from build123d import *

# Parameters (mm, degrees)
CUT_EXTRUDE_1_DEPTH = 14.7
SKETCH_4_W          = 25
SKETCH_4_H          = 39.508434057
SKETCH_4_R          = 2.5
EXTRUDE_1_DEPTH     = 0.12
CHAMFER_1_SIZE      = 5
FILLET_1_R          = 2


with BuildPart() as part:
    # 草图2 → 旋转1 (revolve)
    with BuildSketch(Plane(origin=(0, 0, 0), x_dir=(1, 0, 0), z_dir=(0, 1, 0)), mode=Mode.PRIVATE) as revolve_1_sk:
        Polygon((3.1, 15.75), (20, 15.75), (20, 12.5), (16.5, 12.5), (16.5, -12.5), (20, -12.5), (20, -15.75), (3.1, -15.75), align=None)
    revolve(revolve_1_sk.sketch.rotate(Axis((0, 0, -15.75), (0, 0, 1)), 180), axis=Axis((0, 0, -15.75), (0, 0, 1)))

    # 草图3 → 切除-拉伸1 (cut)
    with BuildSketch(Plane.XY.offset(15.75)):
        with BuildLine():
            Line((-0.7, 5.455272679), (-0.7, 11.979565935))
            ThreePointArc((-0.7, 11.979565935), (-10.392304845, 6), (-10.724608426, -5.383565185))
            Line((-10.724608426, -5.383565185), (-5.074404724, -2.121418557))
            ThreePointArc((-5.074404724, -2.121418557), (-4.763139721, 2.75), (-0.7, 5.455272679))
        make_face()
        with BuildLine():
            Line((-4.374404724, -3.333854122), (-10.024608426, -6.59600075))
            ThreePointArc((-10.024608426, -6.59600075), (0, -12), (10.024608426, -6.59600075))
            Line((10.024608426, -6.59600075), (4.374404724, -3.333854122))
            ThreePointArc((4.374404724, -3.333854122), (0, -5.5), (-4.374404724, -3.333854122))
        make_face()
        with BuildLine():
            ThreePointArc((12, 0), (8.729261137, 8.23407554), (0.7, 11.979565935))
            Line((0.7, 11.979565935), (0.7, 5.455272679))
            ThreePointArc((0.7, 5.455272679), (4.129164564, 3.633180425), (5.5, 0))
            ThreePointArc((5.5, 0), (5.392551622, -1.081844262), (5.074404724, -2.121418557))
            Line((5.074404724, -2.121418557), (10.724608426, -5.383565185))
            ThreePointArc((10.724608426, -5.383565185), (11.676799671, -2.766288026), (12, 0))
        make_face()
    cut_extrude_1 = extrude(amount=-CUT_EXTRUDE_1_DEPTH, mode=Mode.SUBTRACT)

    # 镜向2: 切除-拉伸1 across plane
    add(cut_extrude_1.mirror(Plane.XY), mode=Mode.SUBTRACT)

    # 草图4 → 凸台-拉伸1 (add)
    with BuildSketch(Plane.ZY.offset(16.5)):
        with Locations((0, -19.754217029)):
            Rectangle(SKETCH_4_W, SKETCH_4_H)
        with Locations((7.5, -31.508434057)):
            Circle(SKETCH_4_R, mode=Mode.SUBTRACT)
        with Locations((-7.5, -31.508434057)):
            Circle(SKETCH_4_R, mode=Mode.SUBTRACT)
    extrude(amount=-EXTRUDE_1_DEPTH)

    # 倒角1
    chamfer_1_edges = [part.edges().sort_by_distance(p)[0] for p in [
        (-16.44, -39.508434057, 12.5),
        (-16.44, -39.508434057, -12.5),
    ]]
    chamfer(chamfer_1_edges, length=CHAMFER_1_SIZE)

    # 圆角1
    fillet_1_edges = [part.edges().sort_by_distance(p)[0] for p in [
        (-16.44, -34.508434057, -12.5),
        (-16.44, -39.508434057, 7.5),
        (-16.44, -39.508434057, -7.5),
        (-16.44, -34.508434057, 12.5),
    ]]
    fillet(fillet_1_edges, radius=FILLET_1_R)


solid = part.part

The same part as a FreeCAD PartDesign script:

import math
import FreeCAD as App
import Part
import Sketcher
Q = App.Units.Quantity


def edges_at(feature, points):
    """Names of the edges that pass closest to the given points."""
    edges = feature.Shape.Edges
    near = lambda p: min(range(len(edges)), key=lambda i: edges[i].distToShape(Part.Vertex(*p))[0])
    return sorted({f"Edge{near(p) + 1}" for p in points})

doc = App.newDocument("Part")
body = doc.addObject("PartDesign::Body", "Body")

sketch1 = body.newObject("Sketcher::SketchObject", "Sketch")
sketch1.AttachmentSupport = (doc.getObject("XZ_Plane"), [""])
sketch1.MapMode = "FlatFace"
sketch1.addGeometry([
    Part.LineSegment(App.Vector(20, -15.8, 0), App.Vector(3.1, -15.8, 0)),
    Part.LineSegment(App.Vector(3.1, -15.8, 0), App.Vector(3.1, 15.8, 0)),
    Part.LineSegment(App.Vector(3.1, 15.8, 0), App.Vector(20, 15.8, 0)),
    Part.LineSegment(App.Vector(20, 15.8, 0), App.Vector(20, 12.5, 0)),
    Part.LineSegment(App.Vector(20, 12.5, 0), App.Vector(16.5, 12.5, 0)),
    Part.LineSegment(App.Vector(16.5, 12.5, 0), App.Vector(16.5, -12.5, 0)),
    Part.LineSegment(App.Vector(16.5, -12.5, 0), App.Vector(20, -12.5, 0)),
    Part.LineSegment(App.Vector(20, -12.5, 0), App.Vector(20, -15.8, 0)),
], False)
sketch1.addConstraint([
    Sketcher.Constraint("Coincident", 0, 2, 1, 1),
    Sketcher.Constraint("Coincident", 1, 2, 2, 1),
    Sketcher.Constraint("Coincident", 2, 2, 3, 1),
    Sketcher.Constraint("Coincident", 3, 2, 4, 1),
    Sketcher.Constraint("Coincident", 4, 2, 5, 1),
    Sketcher.Constraint("Coincident", 5, 2, 6, 1),
    Sketcher.Constraint("Coincident", 6, 2, 7, 1),
    Sketcher.Constraint("Coincident", 7, 2, 0, 1),
    Sketcher.Constraint("Horizontal", 0),
    Sketcher.Constraint("Vertical", 1),
    Sketcher.Constraint("Horizontal", 2),
    Sketcher.Constraint("Vertical", 3),
    Sketcher.Constraint("Horizontal", 4),
    Sketcher.Constraint("Vertical", 5),
    Sketcher.Constraint("Horizontal", 6),
    Sketcher.Constraint("Vertical", 7),
    Sketcher.Constraint("Symmetric", 3, 2, 6, 2, -1),
    Sketcher.Constraint("Equal", 3, 7),
    Sketcher.Constraint("DistanceY", 5, 2, 5, 1, 25.0),
    Sketcher.Constraint("DistanceX", 0, 2, 0, 1, 16.9),
    Sketcher.Constraint("DistanceX", 4, 2, 4, 1, 3.5),
    Sketcher.Constraint("DistanceY", 1, 1, 1, 2, 31.5),
    Sketcher.Constraint("DistanceX", -1, 1, 2, 2, 20.0),
])
revolution = body.newObject("PartDesign::Revolution", "Revolution")
revolution.Profile = sketch1
revolution.ReferenceAxis = (sketch1, ["V_Axis"])
revolution.Angle = 360

sketch2 = body.newObject("Sketcher::SketchObject", "Sketch001")
sketch2.AttachmentSupport = (doc.getObject("XY_Plane"), [""])
sketch2.MapMode = "FlatFace"
sketch2.AttachmentOffset = App.Placement(App.Vector(0, 0, 15.75), App.Rotation())
sketch2.addGeometry([
    Part.LineSegment(App.Vector(-0.7, 5.5, 0), App.Vector(-0.7, 12, 0)),
    Part.ArcOfCircle(Part.Circle(App.Vector(0, 0, 0), App.Vector(0, 0, 1), 12), math.radians(93), math.radians(207)),
    Part.LineSegment(App.Vector(-10.7, -5.4, 0), App.Vector(-5.1, -2.1, 0)),
    Part.ArcOfCircle(Part.Circle(App.Vector(0, 0, 0), App.Vector(0, 0, 1), 5.5), math.radians(97), math.radians(203)),
    Part.LineSegment(App.Vector(-4.4, -3.3, 0), App.Vector(-10, -6.6, 0)),
    Part.ArcOfCircle(Part.Circle(App.Vector(0, 0, 0), App.Vector(0, 0, 1), 12), math.radians(-147), math.radians(-33)),
    Part.LineSegment(App.Vector(10, -6.6, 0), App.Vector(4.4, -3.3, 0)),
    Part.ArcOfCircle(Part.Circle(App.Vector(0, 0, 0), App.Vector(0, 0, 1), 5.5), math.radians(-143), math.radians(-37)),
    Part.ArcOfCircle(Part.Circle(App.Vector(0, 0, 0), App.Vector(0, 0, 1), 12), math.radians(0), math.radians(87)),
    Part.LineSegment(App.Vector(0.7, 12, 0), App.Vector(0.7, 5.5, 0)),
    Part.ArcOfCircle(Part.Circle(App.Vector(0, 0, 0), App.Vector(0, 0, 1), 5.5), math.radians(0), math.radians(83)),
    Part.ArcOfCircle(Part.Circle(App.Vector(0, 0, 0), App.Vector(0, 0, 1), 5.5), math.radians(-23), math.radians(0)),
    Part.LineSegment(App.Vector(5.1, -2.1, 0), App.Vector(10.7, -5.4, 0)),
    Part.ArcOfCircle(Part.Circle(App.Vector(0, 0, 0), App.Vector(0, 0, 1), 12), math.radians(-27), math.radians(0)),
], False)
sketch2.addConstraint([
    Sketcher.Constraint("Coincident", 0, 2, 1, 1),
    Sketcher.Constraint("Coincident", 1, 2, 2, 1),
    Sketcher.Constraint("Coincident", 2, 2, 3, 2),
    Sketcher.Constraint("Coincident", 3, 1, 0, 1),
    Sketcher.Constraint("Coincident", 4, 2, 5, 1),
    Sketcher.Constraint("Coincident", 5, 2, 6, 1),
    Sketcher.Constraint("Coincident", 6, 2, 7, 2),
    Sketcher.Constraint("Coincident", 7, 1, 4, 1),
    Sketcher.Constraint("Coincident", 8, 2, 9, 1),
    Sketcher.Constraint("Coincident", 9, 2, 10, 2),
    Sketcher.Constraint("Tangent", 10, 1, 11, 2),
    Sketcher.Constraint("Coincident", 11, 1, 12, 1),
    Sketcher.Constraint("Coincident", 12, 2, 13, 1),
    Sketcher.Constraint("Tangent", 13, 2, 8, 1),
    Sketcher.Constraint("Vertical", 0),
    Sketcher.Constraint("Vertical", 9),
    Sketcher.Constraint("Coincident", 1, 3, -1, 1),
    Sketcher.Constraint("Coincident", 3, 3, -1, 1),
    Sketcher.Constraint("Coincident", 5, 3, -1, 1),
    Sketcher.Constraint("Coincident", 7, 3, -1, 1),
    Sketcher.Constraint("Coincident", 8, 3, -1, 1),
    Sketcher.Constraint("Coincident", 10, 3, -1, 1),
    Sketcher.Constraint("Equal", 1, 5),
    Sketcher.Constraint("Equal", 3, 7),
    Sketcher.Constraint("Equal", 5, 8),
    Sketcher.Constraint("Equal", 7, 10),
    Sketcher.Constraint("Equal", 10, 11),
    Sketcher.Constraint("Equal", 8, 13),
    Sketcher.Constraint("PointOnObject", 10, 1, -1),
    Sketcher.Constraint("PointOnObject", 13, 2, -1),
    Sketcher.Constraint("Parallel", 2, 4),
    Sketcher.Constraint("Parallel", 6, 12),
    Sketcher.Constraint("Horizontal", 4, 2, 5, 2),
    Sketcher.Constraint("Horizontal", 6, 2, 7, 1),
    Sketcher.Constraint("Horizontal", 0, 2, 8, 2),
    Sketcher.Constraint("Horizontal", 2, 2, 11, 1),
    Sketcher.Constraint("Equal", 2, 4),
    Sketcher.Constraint("Radius", 1, 12.0),
    Sketcher.Constraint("Radius", 3, 5.5),
    Sketcher.Constraint("Angle", 2, Q("30 deg")),
    Sketcher.Constraint("DistanceX", 0, 2, -1, 1, 0.7),
    Sketcher.Constraint("DistanceX", 1, 2, 4, 2, 0.7),
])
pocket1 = body.newObject("PartDesign::Pocket", "Pocket")
pocket1.Profile = sketch2
pocket1.Length = 14.7
doc.recompute()

mirrored = body.newObject("PartDesign::Mirrored", "Mirrored")
mirrored.Originals = [pocket1]
mirrored.MirrorPlane = (doc.getObject("XY_Plane"), [""])
body.Tip = mirrored

sketch3 = body.newObject("Sketcher::SketchObject", "Sketch002")
sketch3.AttachmentSupport = (doc.getObject("YZ_Plane"), [""])
sketch3.MapMode = "FlatFace"
sketch3.AttachmentOffset = App.Placement(App.Vector(0, 0, -16.5), App.Rotation())
sketch3.addGeometry([
    Part.LineSegment(App.Vector(0, -12.5, 0), App.Vector(-39.5, -12.5, 0)),
    Part.LineSegment(App.Vector(-39.5, -12.5, 0), App.Vector(-39.5, 12.5, 0)),
    Part.LineSegment(App.Vector(-39.5, 12.5, 0), App.Vector(0, 12.5, 0)),
    Part.LineSegment(App.Vector(0, 12.5, 0), App.Vector(0, -12.5, 0)),
    Part.Circle(App.Vector(-31.5, -7.5, 0), App.Vector(0, 0, 1), 2.5),
    Part.Circle(App.Vector(-31.5, 7.5, 0), App.Vector(0, 0, 1), 2.5),
], False)
sketch3.addConstraint([
    Sketcher.Constraint("Coincident", 0, 2, 1, 1),
    Sketcher.Constraint("Coincident", 1, 2, 2, 1),
    Sketcher.Constraint("Coincident", 2, 2, 3, 1),
    Sketcher.Constraint("Coincident", 3, 2, 0, 1),
    Sketcher.Constraint("Horizontal", 0),
    Sketcher.Constraint("Vertical", 1),
    Sketcher.Constraint("Horizontal", 2),
    Sketcher.Constraint("Vertical", 3),
    Sketcher.Constraint("Equal", 4, 5),
    Sketcher.Constraint("Symmetric", 2, 2, 3, 2, -1, 1),
    Sketcher.Constraint("Symmetric", 4, 3, 5, 3, -1),
    Sketcher.Constraint("Diameter", 4, 5.0),
    Sketcher.Constraint("DistanceY", 1, 1, 1, 2, 25.0),
    Sketcher.Constraint("DistanceY", 4, 3, 5, 3, 15.0),
    Sketcher.Constraint("DistanceX", 0, 2, 4, 3, 8.0),
    Sketcher.Constraint("DistanceX", 0, 2, 0, 1, 39.508434),
])
pad1 = body.newObject("PartDesign::Pad", "Pad")
pad1.Profile = sketch3
pad1.Length = 0.12
doc.recompute()

chamfer = body.newObject("PartDesign::Chamfer", "Chamfer")
chamfer.Base = (pad1, edges_at(pad1, [(-16.44, -39.508, 12.5), (-16.44, -39.508, -12.5)]))
chamfer.Size = 5
doc.recompute()

fillet = body.newObject("PartDesign::Fillet", "Fillet")
fillet.Base = (chamfer, edges_at(chamfer, [
    (-16.44, -34.508, -12.5),
    (-16.44, -39.508, 7.5),
    (-16.44, -39.508, -7.5),
    (-16.44, -34.508, 12.5),
]))
fillet.Radius = 2

doc.recompute()
